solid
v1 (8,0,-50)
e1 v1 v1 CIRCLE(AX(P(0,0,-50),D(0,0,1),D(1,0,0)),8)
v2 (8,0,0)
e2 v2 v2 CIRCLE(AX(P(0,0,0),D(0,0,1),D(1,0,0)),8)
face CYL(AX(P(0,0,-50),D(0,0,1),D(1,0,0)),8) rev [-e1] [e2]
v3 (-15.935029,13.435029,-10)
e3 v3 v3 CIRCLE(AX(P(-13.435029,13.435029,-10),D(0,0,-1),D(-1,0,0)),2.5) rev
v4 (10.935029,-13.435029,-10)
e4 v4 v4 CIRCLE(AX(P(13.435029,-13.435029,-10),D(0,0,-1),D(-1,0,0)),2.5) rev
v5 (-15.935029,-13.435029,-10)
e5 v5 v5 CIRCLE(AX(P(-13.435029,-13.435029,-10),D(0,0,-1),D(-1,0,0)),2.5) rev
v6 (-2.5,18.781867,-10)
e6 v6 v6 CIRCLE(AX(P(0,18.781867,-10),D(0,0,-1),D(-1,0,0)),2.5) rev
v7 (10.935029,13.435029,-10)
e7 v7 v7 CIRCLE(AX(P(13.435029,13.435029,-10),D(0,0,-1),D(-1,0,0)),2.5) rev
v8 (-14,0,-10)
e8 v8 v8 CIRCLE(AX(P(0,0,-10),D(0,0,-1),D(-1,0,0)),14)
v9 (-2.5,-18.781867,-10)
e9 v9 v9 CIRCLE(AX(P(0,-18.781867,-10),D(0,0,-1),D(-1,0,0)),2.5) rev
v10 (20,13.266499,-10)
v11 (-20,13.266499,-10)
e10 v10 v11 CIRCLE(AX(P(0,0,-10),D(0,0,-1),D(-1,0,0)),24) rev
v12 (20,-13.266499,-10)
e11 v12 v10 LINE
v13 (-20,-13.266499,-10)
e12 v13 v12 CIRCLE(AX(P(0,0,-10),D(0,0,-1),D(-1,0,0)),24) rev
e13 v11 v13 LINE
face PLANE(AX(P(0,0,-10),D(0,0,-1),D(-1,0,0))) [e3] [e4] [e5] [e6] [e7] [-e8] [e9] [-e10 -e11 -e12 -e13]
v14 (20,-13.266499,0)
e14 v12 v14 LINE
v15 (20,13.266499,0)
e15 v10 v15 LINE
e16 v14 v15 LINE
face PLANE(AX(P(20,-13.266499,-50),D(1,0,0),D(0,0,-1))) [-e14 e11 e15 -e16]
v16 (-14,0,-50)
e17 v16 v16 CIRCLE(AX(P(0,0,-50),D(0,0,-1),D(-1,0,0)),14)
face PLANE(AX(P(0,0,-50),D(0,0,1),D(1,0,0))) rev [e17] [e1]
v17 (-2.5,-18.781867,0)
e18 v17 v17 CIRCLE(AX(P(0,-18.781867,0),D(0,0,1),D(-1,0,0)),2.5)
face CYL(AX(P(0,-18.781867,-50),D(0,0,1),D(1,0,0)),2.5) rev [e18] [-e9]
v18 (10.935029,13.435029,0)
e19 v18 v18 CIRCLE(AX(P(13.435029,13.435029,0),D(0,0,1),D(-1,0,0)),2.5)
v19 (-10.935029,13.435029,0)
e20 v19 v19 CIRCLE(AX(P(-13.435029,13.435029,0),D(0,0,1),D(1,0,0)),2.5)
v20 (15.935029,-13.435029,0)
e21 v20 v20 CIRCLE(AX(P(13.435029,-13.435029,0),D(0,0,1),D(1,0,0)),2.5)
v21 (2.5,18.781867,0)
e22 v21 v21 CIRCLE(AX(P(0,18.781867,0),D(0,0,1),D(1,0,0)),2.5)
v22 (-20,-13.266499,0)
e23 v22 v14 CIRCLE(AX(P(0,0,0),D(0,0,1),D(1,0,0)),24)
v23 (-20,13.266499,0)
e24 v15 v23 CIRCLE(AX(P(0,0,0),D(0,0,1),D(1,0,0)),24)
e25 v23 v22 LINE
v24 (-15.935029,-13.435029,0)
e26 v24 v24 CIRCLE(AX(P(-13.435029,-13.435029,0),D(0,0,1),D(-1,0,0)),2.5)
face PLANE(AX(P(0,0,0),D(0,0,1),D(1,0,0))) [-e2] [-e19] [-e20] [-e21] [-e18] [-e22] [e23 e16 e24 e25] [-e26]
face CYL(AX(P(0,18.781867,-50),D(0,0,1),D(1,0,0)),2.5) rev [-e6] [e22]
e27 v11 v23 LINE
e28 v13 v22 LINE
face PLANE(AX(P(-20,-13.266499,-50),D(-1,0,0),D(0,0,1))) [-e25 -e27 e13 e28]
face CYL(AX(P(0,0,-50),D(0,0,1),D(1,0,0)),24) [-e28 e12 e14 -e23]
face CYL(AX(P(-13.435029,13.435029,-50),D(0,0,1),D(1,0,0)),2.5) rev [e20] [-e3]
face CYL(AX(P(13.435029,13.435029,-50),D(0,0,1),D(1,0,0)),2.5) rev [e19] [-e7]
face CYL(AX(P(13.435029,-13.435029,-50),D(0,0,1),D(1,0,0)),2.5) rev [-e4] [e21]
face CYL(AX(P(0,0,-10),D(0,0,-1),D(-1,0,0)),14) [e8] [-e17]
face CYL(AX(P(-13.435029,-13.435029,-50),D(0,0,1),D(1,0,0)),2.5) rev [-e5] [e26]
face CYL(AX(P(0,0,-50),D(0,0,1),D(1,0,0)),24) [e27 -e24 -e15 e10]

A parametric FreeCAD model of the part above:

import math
import FreeCAD as App
import Part
import Sketcher

V = App.Vector

doc = App.newDocument("Part")
body = doc.addObject("PartDesign::Body", "Body")

# Sketch on XY plane
sketch1 = body.newObject("Sketcher::SketchObject", "Sketch")
sketch1.AttachmentSupport = (doc.getObject("XY_Plane"), [""])
sketch1.MapMode = "FlatFace"
sketch1.addGeometry([
    Part.LineSegment(V(20, -13.3, 0), V(20, 13.3, 0)),  # 0
    Part.ArcOfCircle(Part.Circle(V(0, 0, 0), V(0, 0, 1), 24), math.radians(34), math.radians(146)),  # 1
    Part.LineSegment(V(-20, 13.3, 0), V(-20, -13.3, 0)),  # 2
    Part.ArcOfCircle(Part.Circle(V(0, 0, 0), V(0, 0, 1), 24), math.radians(-146), math.radians(-34)),  # 3
    Part.Circle(V(-13.4, -13.4, 0), V(0, 0, 1), 2.5),  # 4
    Part.Circle(V(0, -18.8, 0), V(0, 0, 1), 2.5),  # 5
    Part.Circle(V(13.4, -13.4, 0), V(0, 0, 1), 2.5),  # 6
    Part.Circle(V(-13.4, 13.4, 0), V(0, 0, 1), 2.5),  # 7
    Part.Circle(V(0, 0, 0), V(0, 0, 1), 8),  # 8
    Part.Circle(V(0, 18.8, 0), V(0, 0, 1), 2.5),  # 9
    Part.Circle(V(13.4, 13.4, 0), V(0, 0, 1), 2.5),  # 10
], False)
sketch1.addConstraint([
    Sketcher.Constraint("Coincident", 0, 2, 1, 1),
    Sketcher.Constraint("Coincident", 1, 2, 2, 1),
    Sketcher.Constraint("Coincident", 2, 2, 3, 1),
    Sketcher.Constraint("Coincident", 3, 2, 0, 1),
    Sketcher.Constraint("Vertical", 0),
    Sketcher.Constraint("Vertical", 2),
    Sketcher.Constraint("Coincident", 1, 3, -1, 1),
    Sketcher.Constraint("Coincident", 3, 3, -1, 1),
    Sketcher.Constraint("Coincident", 8, 3, -1, 1),
    Sketcher.Constraint("Equal", 1, 3),
    Sketcher.Constraint("Equal", 4, 5),
    Sketcher.Constraint("Equal", 5, 6),
    Sketcher.Constraint("Equal", 6, 7),
    Sketcher.Constraint("Equal", 7, 9),
    Sketcher.Constraint("Equal", 9, 10),
    Sketcher.Constraint("Symmetric", 6, 3, 7, 3, -1, 1),
    Sketcher.Constraint("Symmetric", 5, 3, 9, 3, -1, 1),
    Sketcher.Constraint("Symmetric", 4, 3, 10, 3, -1, 1),
    Sketcher.Constraint("Symmetric", 4, 3, 6, 3, -2),
    Sketcher.Constraint("PointOnObject", 5, 3, -2),
    Sketcher.Constraint("Horizontal", 0, 2, 1, 2),
    Sketcher.Constraint("Diameter", 4, 5.0),
    Sketcher.Constraint("Diameter", 8, 16.0),
    Sketcher.Constraint("Radius", 1, 24.0),
    Sketcher.Constraint("DistanceX", -1, 1, 0, 2, 20.0),
    Sketcher.Constraint("DistanceX", 4, 3, -1, 1, 13.435029),
    Sketcher.Constraint("DistanceY", 4, 3, -1, 1, 13.435029),
    Sketcher.Constraint("DistanceY", 5, 3, 4, 3, 5.346839),
])
pad1 = body.newObject("PartDesign::Pad", "Pad")
pad1.Profile = sketch1
pad1.Length = 50
pad1.Reversed = True

# Sketch on XY plane
sketch2 = body.newObject("Sketcher::SketchObject", "Sketch001")
sketch2.AttachmentSupport = (doc.getObject("XY_Plane"), [""])
sketch2.MapMode = "FlatFace"
sketch2.AttachmentOffset = App.Placement(V(0, 0, -50), App.Rotation())
sketch2.addGeometry([
    Part.LineSegment(V(29, 33, 0), V(29, -33, 0)),  # 0
    Part.LineSegment(V(29, -33, 0), V(-29, -33, 0)),  # 1
    Part.LineSegment(V(-29, -33, 0), V(-29, 33, 0)),  # 2
    Part.LineSegment(V(-29, 33, 0), V(29, 33, 0)),  # 3
    Part.Circle(V(0, 0, 0), V(0, 0, 1), 14),  # 4
], False)
sketch2.addConstraint([
    Sketcher.Constraint("Coincident", 0, 2, 1, 1),
    Sketcher.Constraint("Coincident", 1, 2, 2, 1),
    Sketcher.Constraint("Coincident", 2, 2, 3, 1),
    Sketcher.Constraint("Coincident", 3, 2, 0, 1),
    Sketcher.Constraint("Vertical", 0),
    Sketcher.Constraint("Horizontal", 1),
    Sketcher.Constraint("Vertical", 2),
    Sketcher.Constraint("Horizontal", 3),
    Sketcher.Constraint("Coincident", 4, 3, -1, 1),
    Sketcher.Constraint("Symmetric", 0, 2, 2, 2, -1, 1),
    Sketcher.Constraint("Diameter", 4, 28.0),
    Sketcher.Constraint("DistanceX", 1, 2, 1, 1, 58.004),
    Sketcher.Constraint("DistanceY", 0, 2, 0, 1, 66.004),
])
pocket1 = body.newObject("PartDesign::Pocket", "Pocket")
pocket1.Profile = sketch2
pocket1.Length = 40
pocket1.Reversed = True

doc.recompute()
